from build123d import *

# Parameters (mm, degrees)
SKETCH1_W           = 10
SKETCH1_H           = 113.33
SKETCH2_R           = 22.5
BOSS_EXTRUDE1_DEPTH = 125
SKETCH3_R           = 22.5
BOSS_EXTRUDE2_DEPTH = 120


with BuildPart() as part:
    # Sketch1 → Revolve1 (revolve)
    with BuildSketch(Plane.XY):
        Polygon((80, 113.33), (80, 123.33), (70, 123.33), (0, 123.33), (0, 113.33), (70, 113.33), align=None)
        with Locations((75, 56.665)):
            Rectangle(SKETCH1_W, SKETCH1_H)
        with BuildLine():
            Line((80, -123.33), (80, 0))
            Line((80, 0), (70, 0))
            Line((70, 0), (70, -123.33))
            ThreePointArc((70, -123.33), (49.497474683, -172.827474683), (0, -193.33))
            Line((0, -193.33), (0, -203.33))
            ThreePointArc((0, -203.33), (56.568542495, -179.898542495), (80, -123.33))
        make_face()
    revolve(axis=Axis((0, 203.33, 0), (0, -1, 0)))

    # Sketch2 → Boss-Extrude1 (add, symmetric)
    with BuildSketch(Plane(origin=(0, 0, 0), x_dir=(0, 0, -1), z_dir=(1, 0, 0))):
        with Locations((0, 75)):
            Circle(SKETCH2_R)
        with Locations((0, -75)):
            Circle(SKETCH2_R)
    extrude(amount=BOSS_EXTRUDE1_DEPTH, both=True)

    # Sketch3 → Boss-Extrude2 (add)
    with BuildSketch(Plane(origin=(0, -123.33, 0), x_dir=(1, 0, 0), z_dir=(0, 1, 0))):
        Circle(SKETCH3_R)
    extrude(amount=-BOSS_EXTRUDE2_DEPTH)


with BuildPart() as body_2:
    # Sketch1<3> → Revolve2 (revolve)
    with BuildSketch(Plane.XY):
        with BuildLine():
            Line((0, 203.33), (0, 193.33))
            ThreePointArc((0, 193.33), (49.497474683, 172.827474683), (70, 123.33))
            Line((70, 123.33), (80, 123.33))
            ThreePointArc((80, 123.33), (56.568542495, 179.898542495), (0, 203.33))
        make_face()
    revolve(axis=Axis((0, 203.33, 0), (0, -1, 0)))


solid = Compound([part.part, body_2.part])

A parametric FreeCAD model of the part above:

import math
import FreeCAD as App
import Part
import Sketcher
from FreeCAD import Vector
Q = App.Units.Quantity

doc = App.newDocument("Part")
body = doc.addObject("PartDesign::Body", "Body")

sketch1 = doc.addObject("Sketcher::SketchObject", "Sketch")
body.addObject(sketch1)
sketch1.AttachmentSupport = (doc.XY_Plane, [""])
sketch1.MapMode = "FlatFace"
sketch1.addGeometry([
    Part.LineSegment(Vector(80, 123, 0), Vector(0, 123, 0)),
    Part.LineSegment(Vector(0, 123, 0), Vector(0, 113, 0)),
    Part.LineSegment(Vector(0, 113, 0), Vector(70, 113, 0)),
    Part.LineSegment(Vector(70, 113, 0), Vector(70, -123, 0)),
    Part.ArcOfCircle(Part.Circle(Vector(0, -123, 0), Vector(0, 0, 1), 70), math.radians(-90), math.radians(0)),
    Part.LineSegment(Vector(0, -193, 0), Vector(0, -203, 0)),
    Part.ArcOfCircle(Part.Circle(Vector(0, -123, 0), Vector(0, 0, 1), 80), math.radians(-90), math.radians(0)),
    Part.LineSegment(Vector(80, -123, 0), Vector(80, 123, 0)),
], False)
sketch1.addConstraint([
    Sketcher.Constraint("Coincident", 0, 2, 1, 1),
    Sketcher.Constraint("Coincident", 1, 2, 2, 1),
    Sketcher.Constraint("Coincident", 2, 2, 3, 1),
    Sketcher.Constraint("Tangent", 3, 2, 4, 2),
    Sketcher.Constraint("Coincident", 4, 1, 5, 1),
    Sketcher.Constraint("Coincident", 5, 2, 6, 1),
    Sketcher.Constraint("Tangent", 6, 2, 7, 1),
    Sketcher.Constraint("Coincident", 7, 2, 0, 1),
    Sketcher.Constraint("Horizontal", 0),
    Sketcher.Constraint("Vertical", 1),
    Sketcher.Constraint("Horizontal", 2),
    Sketcher.Constraint("Vertical", 3),
    Sketcher.Constraint("Vertical", 5),
    Sketcher.Constraint("Vertical", 7),
    Sketcher.Constraint("Coincident", 6, 3, 4, 3),
    Sketcher.Constraint("PointOnObject", 4, 3, -2),
    Sketcher.Constraint("PointOnObject", 0, 2, -2),
    Sketcher.Constraint("PointOnObject", 4, 1, -2),
    Sketcher.Constraint("Equal", 1, 5),
    Sketcher.Constraint("Radius", 4, Q("70 mm")),
    Sketcher.Constraint("Radius", 6, Q("80 mm")),
    Sketcher.Constraint("DistanceY", 3, 2, 3, 1, Q("236.66 mm")),
    Sketcher.Constraint("DistanceY", 4, 3, -1, 1, Q("123.33 mm")),
])
revolution = doc.addObject("PartDesign::Revolution", "Revolution")
body.addObject(revolution)
revolution.Profile = sketch1
revolution.ReferenceAxis = (sketch1, ["V_Axis"])
revolution.Angle = 360

sketch2 = doc.addObject("Sketcher::SketchObject", "Sketch001")
body.addObject(sketch2)
sketch2.AttachmentSupport = (doc.YZ_Plane, [""])
sketch2.MapMode = "FlatFace"
sketch2.addGeometry([
    Part.Circle(Vector(75, 0, 0), Vector(0, 0, 1), 22),
    Part.Circle(Vector(-75, 0, 0), Vector(0, 0, 1), 22),
], False)
sketch2.addConstraint([
    Sketcher.Constraint("Equal", 0, 1),
    Sketcher.Constraint("Symmetric", 0, 3, 1, 3, -1, 1),
    Sketcher.Constraint("PointOnObject", 0, 3, -1),
    Sketcher.Constraint("Diameter", 0, Q("45 mm")),
    Sketcher.Constraint("DistanceX", -1, 1, 0, 3, Q("75 mm")),
])
pad1 = doc.addObject("PartDesign::Pad", "Pad")
body.addObject(pad1)
pad1.Profile = sketch2
pad1.Length = 250
pad1.Midplane = True

sketch3 = doc.addObject("Sketcher::SketchObject", "Sketch002")
body.addObject(sketch3)
sketch3.AttachmentSupport = (doc.XZ_Plane, [""])
sketch3.MapMode = "FlatFace"
sketch3.AttachmentOffset = App.Placement(Vector(0, 0, 123.33), App.Rotation())
sketch3.addGeometry(Part.Circle(Vector(0, 0, 0), Vector(0, 0, 1), 22), False)
sketch3.addConstraint([
    Sketcher.Constraint("Coincident", 0, 3, -1, 1),
    Sketcher.Constraint("Diameter", 0, Q("45 mm")),
])
pad2 = doc.addObject("PartDesign::Pad", "Pad001")
body.addObject(pad2)
pad2.Profile = sketch3
pad2.Length = 120
body2 = doc.addObject("PartDesign::Body", "Body001")

sketch4 = doc.addObject("Sketcher::SketchObject", "Sketch003")
body2.addObject(sketch4)
sketch4.AttachmentSupport = (doc.getObject("XY_Plane001"), [""])
sketch4.MapMode = "FlatFace"
sketch4.addGeometry([
    Part.LineSegment(Vector(0, 203, 0), Vector(0, 193, 0)),
    Part.ArcOfCircle(Part.Circle(Vector(0, 123, 0), Vector(0, 0, 1), 70), math.radians(0), math.radians(90)),
    Part.LineSegment(Vector(70, 123, 0), Vector(80, 123, 0)),
    Part.ArcOfCircle(Part.Circle(Vector(0, 123, 0), Vector(0, 0, 1), 80), math.radians(0), math.radians(90)),
], False)
sketch4.addConstraint([
    Sketcher.Constraint("Coincident", 0, 2, 1, 2),
    Sketcher.Constraint("Coincident", 1, 1, 2, 1),
    Sketcher.Constraint("Coincident", 2, 2, 3, 1),
    Sketcher.Constraint("Coincident", 3, 2, 0, 1),
    Sketcher.Constraint("Vertical", 0),
    Sketcher.Constraint("Horizontal", 2),
    Sketcher.Constraint("Coincident", 3, 3, 1, 3),
    Sketcher.Constraint("PointOnObject", 1, 3, -2),
    Sketcher.Constraint("PointOnObject", 0, 2, -2),
    Sketcher.Constraint("Horizontal", 3, 3, 1, 1),
    Sketcher.Constraint("Radius", 1, Q("70 mm")),
    Sketcher.Constraint("Radius", 3, Q("80 mm")),
    Sketcher.Constraint("DistanceY", -1, 1, 1, 3, Q("123.33 mm")),
])
revolution2 = doc.addObject("PartDesign::Revolution", "Revolution001")
body2.addObject(revolution2)
revolution2.Profile = sketch4
revolution2.ReferenceAxis = (sketch4, ["V_Axis"])
revolution2.Angle = 360

doc.recompute()
